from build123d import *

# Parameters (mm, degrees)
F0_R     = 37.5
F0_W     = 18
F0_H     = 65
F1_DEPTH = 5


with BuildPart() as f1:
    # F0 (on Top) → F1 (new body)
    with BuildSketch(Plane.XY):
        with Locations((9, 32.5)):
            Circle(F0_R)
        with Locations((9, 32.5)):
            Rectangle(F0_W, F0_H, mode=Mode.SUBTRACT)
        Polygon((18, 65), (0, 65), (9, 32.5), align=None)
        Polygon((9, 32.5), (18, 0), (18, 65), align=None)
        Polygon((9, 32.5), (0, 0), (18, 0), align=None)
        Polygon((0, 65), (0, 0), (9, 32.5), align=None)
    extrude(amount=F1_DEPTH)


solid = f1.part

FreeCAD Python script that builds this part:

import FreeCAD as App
import Part
import Sketcher
Q = App.Units.Quantity

doc = App.newDocument("Part")
body = doc.addObject("PartDesign::Body", "Body")

# Sketch on XY plane
sketch1 = body.newObject("Sketcher::SketchObject", "Sketch")
sketch1.AttachmentSupport = (doc.getObject("XY_Plane"), [""])
sketch1.MapMode = "FlatFace"
sketch1.addGeometry(Part.Circle(App.Vector(9, 32.5, 0), App.Vector(0, 0, 1), 37.5), False)
sketch1.addConstraint(Sketcher.Constraint("Diameter", 0, Q("75 mm")))
sketch1.addConstraint(Sketcher.Constraint("DistanceX", -1, 1, 0, 3, Q("9 mm")))
sketch1.addConstraint(Sketcher.Constraint("DistanceY", -1, 1, 0, 3, Q("32.5 mm")))
pad1 = body.newObject("PartDesign::Pad", "Pad")
pad1.Profile = sketch1
pad1.Length = 5

doc.recompute()
